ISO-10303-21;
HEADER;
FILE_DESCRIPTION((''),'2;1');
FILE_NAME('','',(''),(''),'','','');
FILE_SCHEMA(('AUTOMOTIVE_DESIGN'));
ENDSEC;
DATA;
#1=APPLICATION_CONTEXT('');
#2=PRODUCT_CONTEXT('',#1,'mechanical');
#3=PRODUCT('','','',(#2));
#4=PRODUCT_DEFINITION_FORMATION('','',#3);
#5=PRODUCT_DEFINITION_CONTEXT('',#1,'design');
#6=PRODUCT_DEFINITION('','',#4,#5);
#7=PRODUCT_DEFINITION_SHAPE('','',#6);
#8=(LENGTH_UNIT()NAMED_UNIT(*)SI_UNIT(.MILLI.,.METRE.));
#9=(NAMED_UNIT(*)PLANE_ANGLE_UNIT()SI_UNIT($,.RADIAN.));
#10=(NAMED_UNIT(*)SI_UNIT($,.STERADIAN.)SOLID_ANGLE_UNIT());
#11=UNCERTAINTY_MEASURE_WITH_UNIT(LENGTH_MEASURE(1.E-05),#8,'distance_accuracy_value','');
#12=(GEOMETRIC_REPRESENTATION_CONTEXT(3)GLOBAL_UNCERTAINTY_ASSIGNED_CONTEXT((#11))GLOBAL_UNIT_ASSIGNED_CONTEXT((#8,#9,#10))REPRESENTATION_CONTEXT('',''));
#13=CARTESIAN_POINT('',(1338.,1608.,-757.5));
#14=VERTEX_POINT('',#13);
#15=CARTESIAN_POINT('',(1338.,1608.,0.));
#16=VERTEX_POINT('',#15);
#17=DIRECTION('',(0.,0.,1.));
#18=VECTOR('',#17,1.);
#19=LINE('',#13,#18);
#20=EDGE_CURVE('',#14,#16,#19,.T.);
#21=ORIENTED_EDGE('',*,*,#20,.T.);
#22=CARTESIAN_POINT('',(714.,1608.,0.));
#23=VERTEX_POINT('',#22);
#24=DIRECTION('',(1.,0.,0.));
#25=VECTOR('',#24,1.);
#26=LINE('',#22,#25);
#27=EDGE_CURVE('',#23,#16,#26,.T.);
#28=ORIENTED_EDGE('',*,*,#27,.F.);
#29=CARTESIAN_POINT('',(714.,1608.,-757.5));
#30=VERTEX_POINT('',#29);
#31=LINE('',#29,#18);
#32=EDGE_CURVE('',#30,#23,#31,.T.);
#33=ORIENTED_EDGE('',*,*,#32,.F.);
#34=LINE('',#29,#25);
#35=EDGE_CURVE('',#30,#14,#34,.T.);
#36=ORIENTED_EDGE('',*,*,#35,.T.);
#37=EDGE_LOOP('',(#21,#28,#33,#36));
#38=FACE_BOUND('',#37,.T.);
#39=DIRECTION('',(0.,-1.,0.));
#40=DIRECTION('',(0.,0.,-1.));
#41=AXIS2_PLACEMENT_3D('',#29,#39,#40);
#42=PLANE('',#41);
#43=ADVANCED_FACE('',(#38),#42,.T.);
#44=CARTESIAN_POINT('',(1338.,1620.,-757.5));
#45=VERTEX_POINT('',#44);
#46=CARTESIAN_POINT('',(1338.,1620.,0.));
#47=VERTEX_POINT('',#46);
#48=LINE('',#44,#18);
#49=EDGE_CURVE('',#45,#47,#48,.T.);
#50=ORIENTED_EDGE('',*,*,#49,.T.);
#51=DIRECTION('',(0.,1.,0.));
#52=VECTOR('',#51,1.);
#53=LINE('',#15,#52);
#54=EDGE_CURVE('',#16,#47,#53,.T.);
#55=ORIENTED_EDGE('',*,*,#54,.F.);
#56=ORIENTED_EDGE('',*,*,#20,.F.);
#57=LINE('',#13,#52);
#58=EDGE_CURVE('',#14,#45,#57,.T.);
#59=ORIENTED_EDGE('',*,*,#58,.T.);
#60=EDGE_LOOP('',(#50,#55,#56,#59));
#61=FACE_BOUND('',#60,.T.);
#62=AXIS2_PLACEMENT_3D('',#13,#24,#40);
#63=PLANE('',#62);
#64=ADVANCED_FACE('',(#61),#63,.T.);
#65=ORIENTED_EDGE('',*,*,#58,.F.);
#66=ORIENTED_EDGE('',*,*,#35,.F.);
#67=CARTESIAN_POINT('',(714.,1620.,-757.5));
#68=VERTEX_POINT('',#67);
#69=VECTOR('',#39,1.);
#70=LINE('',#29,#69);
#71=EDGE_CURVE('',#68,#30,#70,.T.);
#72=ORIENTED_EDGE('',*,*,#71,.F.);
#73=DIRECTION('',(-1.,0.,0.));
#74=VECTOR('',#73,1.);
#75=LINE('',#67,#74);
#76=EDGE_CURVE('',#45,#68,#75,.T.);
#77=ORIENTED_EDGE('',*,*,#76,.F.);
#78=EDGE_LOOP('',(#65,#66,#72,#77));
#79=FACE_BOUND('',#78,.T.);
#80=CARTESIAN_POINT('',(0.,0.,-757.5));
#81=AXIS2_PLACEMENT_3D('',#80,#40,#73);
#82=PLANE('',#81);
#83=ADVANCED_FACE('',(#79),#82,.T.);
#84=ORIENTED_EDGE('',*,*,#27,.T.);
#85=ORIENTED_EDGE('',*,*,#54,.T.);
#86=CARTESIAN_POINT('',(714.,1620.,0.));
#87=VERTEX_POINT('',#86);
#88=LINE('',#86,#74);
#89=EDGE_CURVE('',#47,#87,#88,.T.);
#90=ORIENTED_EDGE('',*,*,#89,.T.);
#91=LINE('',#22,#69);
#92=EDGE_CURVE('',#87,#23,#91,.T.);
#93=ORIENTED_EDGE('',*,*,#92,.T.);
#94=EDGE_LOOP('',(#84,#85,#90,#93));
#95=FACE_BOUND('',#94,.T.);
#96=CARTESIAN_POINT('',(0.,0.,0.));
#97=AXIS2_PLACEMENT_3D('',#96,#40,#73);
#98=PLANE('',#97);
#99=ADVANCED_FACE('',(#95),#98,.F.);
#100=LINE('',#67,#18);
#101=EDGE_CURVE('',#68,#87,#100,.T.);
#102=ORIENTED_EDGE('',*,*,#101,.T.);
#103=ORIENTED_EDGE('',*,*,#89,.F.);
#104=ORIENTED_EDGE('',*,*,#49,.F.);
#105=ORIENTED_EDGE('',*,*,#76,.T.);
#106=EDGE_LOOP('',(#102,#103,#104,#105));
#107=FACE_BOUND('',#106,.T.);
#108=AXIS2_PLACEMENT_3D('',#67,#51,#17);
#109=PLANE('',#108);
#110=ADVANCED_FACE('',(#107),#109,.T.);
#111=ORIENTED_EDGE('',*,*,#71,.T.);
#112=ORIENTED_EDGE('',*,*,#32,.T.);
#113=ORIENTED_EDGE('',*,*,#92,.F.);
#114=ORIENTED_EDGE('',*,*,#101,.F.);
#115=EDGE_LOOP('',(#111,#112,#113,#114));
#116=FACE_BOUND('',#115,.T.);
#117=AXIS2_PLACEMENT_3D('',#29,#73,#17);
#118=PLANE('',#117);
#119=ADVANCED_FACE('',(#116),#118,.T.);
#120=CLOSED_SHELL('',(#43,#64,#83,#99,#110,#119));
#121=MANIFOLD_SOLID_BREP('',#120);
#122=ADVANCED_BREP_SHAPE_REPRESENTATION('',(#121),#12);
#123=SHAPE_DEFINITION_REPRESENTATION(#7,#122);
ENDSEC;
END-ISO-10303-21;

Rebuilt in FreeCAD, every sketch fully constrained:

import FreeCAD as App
import Part
import Sketcher

doc = App.newDocument("Part")
body = doc.addObject("PartDesign::Body", "Body")

# Sketch on XY plane
sketch1 = body.newObject("Sketcher::SketchObject", "Sketch")
sketch1.AttachmentSupport = (doc.getObject("XY_Plane"), [""])
sketch1.MapMode = "FlatFace"
sketch1.addGeometry(Part.LineSegment(App.Vector(714, 1620, 0), App.Vector(714, 1608, 0)), False)
sketch1.addGeometry(Part.LineSegment(App.Vector(714, 1608, 0), App.Vector(1338, 1608, 0)), False)
sketch1.addGeometry(Part.LineSegment(App.Vector(1338, 1608, 0), App.Vector(1338, 1620, 0)), False)
sketch1.addGeometry(Part.LineSegment(App.Vector(1338, 1620, 0), App.Vector(714, 1620, 0)), False)
sketch1.addConstraint(Sketcher.Constraint("Coincident", 0, 2, 1, 1))
sketch1.addConstraint(Sketcher.Constraint("Coincident", 1, 2, 2, 1))
sketch1.addConstraint(Sketcher.Constraint("Coincident", 2, 2, 3, 1))
sketch1.addConstraint(Sketcher.Constraint("Coincident", 3, 2, 0, 1))
sketch1.addConstraint(Sketcher.Constraint("Vertical", 0))
sketch1.addConstraint(Sketcher.Constraint("Horizontal", 1))
sketch1.addConstraint(Sketcher.Constraint("Vertical", 2))
sketch1.addConstraint(Sketcher.Constraint("Horizontal", 3))
sketch1.addConstraint(Sketcher.Constraint("DistanceX", 1, 1, 1, 2, 624.0))
sketch1.addConstraint(Sketcher.Constraint("DistanceY", 0, 2, 0, 1, 12.0))
sketch1.addConstraint(Sketcher.Constraint("DistanceX", -1, 1, 0, 2, 714.0))
sketch1.addConstraint(Sketcher.Constraint("DistanceY", -1, 1, 0, 2, 1608.0))
pad1 = body.newObject("PartDesign::Pad", "Pad")
pad1.Profile = sketch1
pad1.Length = 757.5
pad1.Reversed = True

doc.recompute()
